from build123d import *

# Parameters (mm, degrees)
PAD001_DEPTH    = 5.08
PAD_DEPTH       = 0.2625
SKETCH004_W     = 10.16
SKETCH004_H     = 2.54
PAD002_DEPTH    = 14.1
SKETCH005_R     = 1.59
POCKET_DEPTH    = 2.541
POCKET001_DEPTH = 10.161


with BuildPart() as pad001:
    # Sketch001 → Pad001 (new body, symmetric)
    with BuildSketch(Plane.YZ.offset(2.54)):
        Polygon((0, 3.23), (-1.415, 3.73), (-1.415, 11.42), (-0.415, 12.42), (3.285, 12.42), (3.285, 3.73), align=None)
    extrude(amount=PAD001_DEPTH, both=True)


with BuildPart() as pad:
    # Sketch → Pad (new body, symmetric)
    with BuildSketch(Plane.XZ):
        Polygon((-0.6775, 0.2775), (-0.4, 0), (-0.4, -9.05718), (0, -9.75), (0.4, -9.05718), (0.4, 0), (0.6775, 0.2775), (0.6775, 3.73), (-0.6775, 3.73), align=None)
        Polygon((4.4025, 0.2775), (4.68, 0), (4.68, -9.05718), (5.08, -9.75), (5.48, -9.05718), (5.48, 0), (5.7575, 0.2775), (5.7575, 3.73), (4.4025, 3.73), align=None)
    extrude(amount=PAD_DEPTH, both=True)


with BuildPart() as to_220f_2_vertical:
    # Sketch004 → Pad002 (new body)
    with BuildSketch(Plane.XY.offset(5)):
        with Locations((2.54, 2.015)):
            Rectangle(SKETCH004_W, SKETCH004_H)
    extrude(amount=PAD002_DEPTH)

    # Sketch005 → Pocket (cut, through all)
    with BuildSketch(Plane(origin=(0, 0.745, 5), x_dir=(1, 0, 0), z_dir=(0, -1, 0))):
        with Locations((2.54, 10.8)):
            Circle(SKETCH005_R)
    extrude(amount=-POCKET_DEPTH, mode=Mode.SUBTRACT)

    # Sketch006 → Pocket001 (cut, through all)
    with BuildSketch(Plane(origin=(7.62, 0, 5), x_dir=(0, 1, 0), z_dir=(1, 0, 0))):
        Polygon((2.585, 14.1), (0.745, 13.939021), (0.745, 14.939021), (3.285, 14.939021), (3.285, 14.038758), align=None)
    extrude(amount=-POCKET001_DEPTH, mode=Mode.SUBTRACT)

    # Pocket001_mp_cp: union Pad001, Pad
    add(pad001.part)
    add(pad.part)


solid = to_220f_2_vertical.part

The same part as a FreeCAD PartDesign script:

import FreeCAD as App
import Part
import Sketcher
from FreeCAD import Vector
Q = App.Units.Quantity


def add_polygon(sketch, points):
    """Adds a closed chain of lines whose ends are joined by coincident constraints."""
    first, n = sketch.GeometryCount, len(points)
    for a, b in zip(points, points[1:] + points[:1]):
        sketch.addGeometry(Part.LineSegment(App.Vector(*a, 0), App.Vector(*b, 0)), False)
    for i in range(n):
        sketch.addConstraint(Sketcher.Constraint("Coincident", first + i, 2, first + (i + 1) % n, 1))

doc = App.newDocument("Part")
body = doc.addObject("PartDesign::Body", "Body")

sketch1 = doc.addObject("Sketcher::SketchObject", "Sketch")
body.addObject(sketch1)
sketch1.AttachmentSupport = (doc.YZ_Plane, [""])
sketch1.MapMode = "FlatFace"
sketch1.AttachmentOffset = App.Placement(Vector(0, 0, 2.54), App.Rotation())
add_polygon(sketch1, [(-1.4, 3.7), (0, 3.2), (3.3, 3.7), (3.3, 12.4), (-0.4, 12.4), (-1.4, 11.4)])
sketch1.addConstraint(Sketcher.Constraint("Vertical", 2))
sketch1.addConstraint(Sketcher.Constraint("Horizontal", 3))
sketch1.addConstraint(Sketcher.Constraint("Vertical", 5))
sketch1.addConstraint(Sketcher.Constraint("PointOnObject", 0, 2, -2))
sketch1.addConstraint(Sketcher.Constraint("Horizontal", 1, 2, 5, 2))
sketch1.addConstraint(Sketcher.Constraint("Angle", 4, Q("-135 deg")))
sketch1.addConstraint(Sketcher.Constraint("DistanceX", 3, 2, 3, 1, 3.7))
sketch1.addConstraint(Sketcher.Constraint("DistanceX", 4, 2, 3, 2, 1.0))
sketch1.addConstraint(Sketcher.Constraint("DistanceY", 2, 1, 2, 2, 8.69))
sketch1.addConstraint(Sketcher.Constraint("DistanceY", 0, 2, 1, 2, 0.5))
sketch1.addConstraint(Sketcher.Constraint("DistanceY", -1, 1, 0, 2, 3.23))
sketch1.addConstraint(Sketcher.Constraint("DistanceX", -1, 1, 1, 2, 3.285))
pad1 = doc.addObject("PartDesign::Pad", "Pad")
body.addObject(pad1)
pad1.Profile = sketch1
pad1.Length = 10.16
pad1.Midplane = True
body2 = doc.addObject("PartDesign::Body", "Body001")
body2.AllowCompound = True

sketch2 = doc.addObject("Sketcher::SketchObject", "Sketch001")
body2.addObject(sketch2)
sketch2.AttachmentSupport = (doc.getObject("XZ_Plane001"), [""])
sketch2.MapMode = "FlatFace"
add_polygon(sketch2, [(-0.68, 0.28), (-0.4, 0), (-0.4, -9.06), (0, -9.75), (0.4, -9.06), (0.4, 0), (0.68, 0.28), (0.68, 3.73), (-0.68, 3.73)])
add_polygon(sketch2, [(4.4, 0.28), (4.68, 0), (4.68, -9.06), (5.08, -9.75), (5.48, -9.06), (5.48, 0), (5.76, 0.28), (5.76, 3.73), (4.4, 3.73)])
sketch2.addConstraint(Sketcher.Constraint("Vertical", 1))
sketch2.addConstraint(Sketcher.Constraint("Vertical", 4))
sketch2.addConstraint(Sketcher.Constraint("Vertical", 6))
sketch2.addConstraint(Sketcher.Constraint("Horizontal", 7))
sketch2.addConstraint(Sketcher.Constraint("Vertical", 8))
sketch2.addConstraint(Sketcher.Constraint("Vertical", 10))
sketch2.addConstraint(Sketcher.Constraint("Vertical", 13))
sketch2.addConstraint(Sketcher.Constraint("Vertical", 15))
sketch2.addConstraint(Sketcher.Constraint("Horizontal", 16))
sketch2.addConstraint(Sketcher.Constraint("Vertical", 17))
sketch2.addConstraint(Sketcher.Constraint("Symmetric", 0, 2, 4, 2, -1, 1))
sketch2.addConstraint(Sketcher.Constraint("Symmetric", 5, 2, 8, 2, -2))
sketch2.addConstraint(Sketcher.Constraint("PointOnObject", 0, 2, -1))
sketch2.addConstraint(Sketcher.Constraint("PointOnObject", 2, 2, -2))
sketch2.addConstraint(Sketcher.Constraint("PointOnObject", 9, 2, -1))
sketch2.addConstraint(Sketcher.Constraint("PointOnObject", 13, 2, -1))
sketch2.addConstraint(Sketcher.Constraint("Perpendicular", 0, 5))
sketch2.addConstraint(Sketcher.Constraint("Perpendicular", 5, 9))
sketch2.addConstraint(Sketcher.Constraint("Parallel", 2, 11))
sketch2.addConstraint(Sketcher.Constraint("Parallel", 3, 12))
sketch2.addConstraint(Sketcher.Constraint("Perpendicular", 9, 14))
sketch2.addConstraint(Sketcher.Constraint("Horizontal", 1, 2, 3, 2))
sketch2.addConstraint(Sketcher.Constraint("Horizontal", 3, 2, 10, 2))
sketch2.addConstraint(Sketcher.Constraint("Horizontal", 2, 2, 11, 2))
sketch2.addConstraint(Sketcher.Constraint("Horizontal", 10, 2, 12, 2))
sketch2.addConstraint(Sketcher.Constraint("Horizontal", 8, 2, 14, 2))
sketch2.addConstraint(Sketcher.Constraint("Horizontal", 7, 2, 15, 2))
sketch2.addConstraint(Sketcher.Constraint("Horizontal", 14, 2, 17, 2))
sketch2.addConstraint(Sketcher.Constraint("Angle", 2, Q("-59.999988 deg")))
sketch2.addConstraint(Sketcher.Constraint("Distance", 2, 0.8))
sketch2.addConstraint(Sketcher.Constraint("DistanceX", 7, 2, 7, 1, 1.355))
sketch2.addConstraint(Sketcher.Constraint("DistanceY", 2, 2, -1, 1, 9.75))
sketch2.addConstraint(Sketcher.Constraint("DistanceY", -1, 1, 6, 2, 3.73))
sketch2.addConstraint(Sketcher.Constraint("DistanceX", -1, 1, 9, 2, 4.68))
pad2 = doc.addObject("PartDesign::Pad", "Pad001")
body2.addObject(pad2)
pad2.Profile = sketch2
pad2.Length = 0.525
pad2.Midplane = True
body3 = doc.addObject("PartDesign::Body", "Body002")

sketch3 = doc.addObject("Sketcher::SketchObject", "Sketch002")
body3.addObject(sketch3)
sketch3.AttachmentSupport = (doc.getObject("XY_Plane002"), [""])
sketch3.MapMode = "FlatFace"
sketch3.AttachmentOffset = App.Placement(Vector(0, 0, 5), App.Rotation())
add_polygon(sketch3, [(-2.5, 3.3), (-2.5, 0.7), (7.6, 0.7), (7.6, 3.3)])
sketch3.addConstraint(Sketcher.Constraint("Vertical", 0))
sketch3.addConstraint(Sketcher.Constraint("Horizontal", 1))
sketch3.addConstraint(Sketcher.Constraint("Vertical", 2))
sketch3.addConstraint(Sketcher.Constraint("Horizontal", 3))
sketch3.addConstraint(Sketcher.Constraint("DistanceX", 1, 1, 1, 2, 10.16))
sketch3.addConstraint(Sketcher.Constraint("DistanceY", 0, 2, 0, 1, 2.54))
sketch3.addConstraint(Sketcher.Constraint("DistanceX", 0, 2, -1, 1, 2.54))
sketch3.addConstraint(Sketcher.Constraint("DistanceY", -1, 1, 0, 2, 0.745))
pad3 = doc.addObject("PartDesign::Pad", "Pad002")
body3.addObject(pad3)
pad3.Profile = sketch3
pad3.Length = 14.1

sketch4 = doc.addObject("Sketcher::SketchObject", "Sketch003")
body3.addObject(sketch4)
sketch4.AttachmentSupport = (doc.getObject("XZ_Plane002"), [""])
sketch4.MapMode = "FlatFace"
sketch4.AttachmentOffset = App.Placement(Vector(0, 0, -0.745), App.Rotation())
sketch4.addGeometry(Part.Circle(Vector(2.5, 15.8, 0), Vector(0, 0, 1), 1.6), False)
sketch4.addConstraint(Sketcher.Constraint("Diameter", 0, 3.18))
sketch4.addConstraint(Sketcher.Constraint("DistanceY", -1, 1, 0, 3, 15.8))
sketch4.addConstraint(Sketcher.Constraint("DistanceX", -1, 1, 0, 3, 2.54))
pocket1 = doc.addObject("PartDesign::Pocket", "Pocket")
body3.addObject(pocket1)
pocket1.Profile = sketch4
pocket1.Type = "ThroughAll"

sketch5 = doc.addObject("Sketcher::SketchObject", "Sketch004")
body3.addObject(sketch5)
sketch5.AttachmentSupport = (doc.getObject("YZ_Plane002"), [""])
sketch5.MapMode = "FlatFace"
sketch5.AttachmentOffset = App.Placement(Vector(0, 0, 7.62), App.Rotation())
add_polygon(sketch5, [(0.7, 18.9), (2.6, 19.1), (3.3, 19), (3.3, 19.9), (0.7, 19.9)])
sketch5.addConstraint(Sketcher.Constraint("Vertical", 2))
sketch5.addConstraint(Sketcher.Constraint("Horizontal", 3))
sketch5.addConstraint(Sketcher.Constraint("Vertical", 4))
sketch5.addConstraint(Sketcher.Constraint("DistanceY", 4, 2, 4, 1, 1.0))
sketch5.addConstraint(Sketcher.Constraint("Angle", 0, Q("4.999996 deg")))
sketch5.addConstraint(Sketcher.Constraint("Angle", 1, Q("-4.999995 deg")))
sketch5.addConstraint(Sketcher.Constraint("DistanceX", 3, 2, 3, 1, 2.54))
sketch5.addConstraint(Sketcher.Constraint("DistanceY", -1, 1, 0, 2, 19.1))
sketch5.addConstraint(Sketcher.Constraint("DistanceX", 0, 2, 1, 2, 0.7))
sketch5.addConstraint(Sketcher.Constraint("DistanceX", -1, 1, 0, 2, 2.585))
pocket2 = doc.addObject("PartDesign::Pocket", "Pocket001")
body3.addObject(pocket2)
pocket2.Profile = sketch5
pocket2.Type = "ThroughAll"
doc.recompute()

boolean = doc.addObject("PartDesign::Boolean", "Boolean")
body3.addObject(boolean)
boolean.Type = "Fuse"
boolean.addObjects([body])
doc.recompute()

boolean2 = doc.addObject("PartDesign::Boolean", "Boolean001")
body3.addObject(boolean2)
boolean2.Type = "Fuse"
boolean2.addObjects([body2])

doc.recompute()
